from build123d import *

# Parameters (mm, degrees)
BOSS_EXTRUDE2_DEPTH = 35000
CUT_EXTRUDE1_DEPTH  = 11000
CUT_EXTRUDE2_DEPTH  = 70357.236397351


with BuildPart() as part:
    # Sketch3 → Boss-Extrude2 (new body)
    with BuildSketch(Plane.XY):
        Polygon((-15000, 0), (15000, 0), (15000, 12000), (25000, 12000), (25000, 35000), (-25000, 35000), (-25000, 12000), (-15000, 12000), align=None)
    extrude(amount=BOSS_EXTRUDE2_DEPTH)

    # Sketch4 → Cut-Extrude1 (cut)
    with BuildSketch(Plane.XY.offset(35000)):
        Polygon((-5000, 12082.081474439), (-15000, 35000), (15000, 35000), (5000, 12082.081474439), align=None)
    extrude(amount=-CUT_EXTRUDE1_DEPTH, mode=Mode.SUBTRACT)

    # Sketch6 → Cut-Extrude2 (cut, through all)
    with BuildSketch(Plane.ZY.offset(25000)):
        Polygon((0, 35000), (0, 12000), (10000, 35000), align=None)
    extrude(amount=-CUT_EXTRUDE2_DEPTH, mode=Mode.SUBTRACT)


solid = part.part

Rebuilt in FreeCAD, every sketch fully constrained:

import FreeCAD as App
import Part
import Sketcher
Q = App.Units.Quantity

doc = App.newDocument("Part")
body = doc.addObject("PartDesign::Body", "Body")

# Sketch on XY plane
sketch1 = body.newObject("Sketcher::SketchObject", "Sketch")
sketch1.AttachmentSupport = (doc.getObject("XY_Plane"), [""])
sketch1.MapMode = "FlatFace"
sketch1.addGeometry([
    Part.LineSegment(App.Vector(-15000, 0, 0), App.Vector(15000, 0, 0)),  # 0
    Part.LineSegment(App.Vector(15000, 0, 0), App.Vector(15000, 12000, 0)),  # 1
    Part.LineSegment(App.Vector(15000, 12000, 0), App.Vector(25000, 12000, 0)),  # 2
    Part.LineSegment(App.Vector(25000, 12000, 0), App.Vector(25000, 35000, 0)),  # 3
    Part.LineSegment(App.Vector(25000, 35000, 0), App.Vector(-25000, 35000, 0)),  # 4
    Part.LineSegment(App.Vector(-25000, 35000, 0), App.Vector(-25000, 12000, 0)),  # 5
    Part.LineSegment(App.Vector(-25000, 12000, 0), App.Vector(-15000, 12000, 0)),  # 6
    Part.LineSegment(App.Vector(-15000, 12000, 0), App.Vector(-15000, 0, 0)),  # 7
], False)
sketch1.addConstraint([
    Sketcher.Constraint("Coincident", 0, 2, 1, 1),
    Sketcher.Constraint("Coincident", 1, 2, 2, 1),
    Sketcher.Constraint("Coincident", 2, 2, 3, 1),
    Sketcher.Constraint("Coincident", 3, 2, 4, 1),
    Sketcher.Constraint("Coincident", 4, 2, 5, 1),
    Sketcher.Constraint("Coincident", 5, 2, 6, 1),
    Sketcher.Constraint("Coincident", 6, 2, 7, 1),
    Sketcher.Constraint("Coincident", 7, 2, 0, 1),
    Sketcher.Constraint("Horizontal", 0),
    Sketcher.Constraint("Vertical", 1),
    Sketcher.Constraint("Horizontal", 2),
    Sketcher.Constraint("Vertical", 3),
    Sketcher.Constraint("Horizontal", 4),
    Sketcher.Constraint("Vertical", 5),
    Sketcher.Constraint("Horizontal", 6),
    Sketcher.Constraint("Vertical", 7),
    Sketcher.Constraint("Symmetric", 0, 2, 7, 2, -1, 1),
    Sketcher.Constraint("Symmetric", 2, 2, 5, 2, -2),
    Sketcher.Constraint("DistanceX", 0, 1, 0, 2, Q("30000 mm")),
    Sketcher.Constraint("DistanceX", 2, 1, 2, 2, Q("10000 mm")),
    Sketcher.Constraint("DistanceY", 1, 1, 1, 2, Q("12000 mm")),
    Sketcher.Constraint("DistanceY", 3, 1, 3, 2, Q("23000 mm")),
])
pad1 = body.newObject("PartDesign::Pad", "Pad")
pad1.Profile = sketch1
pad1.Length = 35000

# Sketch on XY plane
sketch2 = body.newObject("Sketcher::SketchObject", "Sketch001")
sketch2.AttachmentSupport = (doc.getObject("XY_Plane"), [""])
sketch2.MapMode = "FlatFace"
sketch2.AttachmentOffset = App.Placement(App.Vector(0, 0, 35000), App.Rotation())
sketch2.addGeometry([
    Part.LineSegment(App.Vector(-15000, 35000, 0), App.Vector(-5000, 12082.081474, 0)),
    Part.LineSegment(App.Vector(-5000, 12082.081474, 0), App.Vector(5000, 12082.081474, 0)),
    Part.LineSegment(App.Vector(5000, 12082.081474, 0), App.Vector(15000, 35000, 0)),
    Part.LineSegment(App.Vector(15000, 35000, 0), App.Vector(-15000, 35000, 0)),
], False)
sketch2.addConstraint([
    Sketcher.Constraint("Coincident", 0, 2, 1, 1),
    Sketcher.Constraint("Coincident", 1, 2, 2, 1),
    Sketcher.Constraint("Coincident", 2, 2, 3, 1),
    Sketcher.Constraint("Coincident", 3, 2, 0, 1),
    Sketcher.Constraint("Horizontal", 1),
    Sketcher.Constraint("Horizontal", 3),
    Sketcher.Constraint("Equal", 0, 2),
    Sketcher.Constraint("DistanceX", 1, 1, 1, 2, Q("10000 mm")),
    Sketcher.Constraint("DistanceX", 3, 2, 3, 1, Q("30000 mm")),
    Sketcher.Constraint("DistanceX", 0, 2, -1, 1, Q("5000 mm")),
    Sketcher.Constraint("DistanceY", -1, 1, 2, 2, Q("35000 mm")),
    Sketcher.Constraint("Distance", 0, Q("25004.619364 mm")),
])
pocket1 = body.newObject("PartDesign::Pocket", "Pocket")
pocket1.Profile = sketch2
pocket1.Length = 11000

# Sketch on YZ plane
sketch3 = body.newObject("Sketcher::SketchObject", "Sketch002")
sketch3.AttachmentSupport = (doc.getObject("YZ_Plane"), [""])
sketch3.MapMode = "FlatFace"
sketch3.AttachmentOffset = App.Placement(App.Vector(0, 0, -25000), App.Rotation())
sketch3.addGeometry([
    Part.LineSegment(App.Vector(35000, 0, 0), App.Vector(12000, 0, 0)),
    Part.LineSegment(App.Vector(12000, 0, 0), App.Vector(35000, 10000, 0)),
    Part.LineSegment(App.Vector(35000, 10000, 0), App.Vector(35000, 0, 0)),
], False)
sketch3.addConstraint([
    Sketcher.Constraint("Coincident", 0, 2, 1, 1),
    Sketcher.Constraint("Coincident", 1, 2, 2, 1),
    Sketcher.Constraint("Coincident", 2, 2, 0, 1),
    Sketcher.Constraint("Horizontal", 0),
    Sketcher.Constraint("Vertical", 2),
    Sketcher.Constraint("PointOnObject", 0, 2, -1),
    Sketcher.Constraint("DistanceX", 0, 2, 0, 1, Q("23000 mm")),
    Sketcher.Constraint("DistanceY", 2, 2, 2, 1, Q("10000 mm")),
    Sketcher.Constraint("DistanceX", -1, 1, 0, 2, Q("12000 mm")),
])
pocket2 = body.newObject("PartDesign::Pocket", "Pocket001")
pocket2.Profile = sketch3
pocket2.Type = "ThroughAll"
pocket2.Reversed = True

doc.recompute()
